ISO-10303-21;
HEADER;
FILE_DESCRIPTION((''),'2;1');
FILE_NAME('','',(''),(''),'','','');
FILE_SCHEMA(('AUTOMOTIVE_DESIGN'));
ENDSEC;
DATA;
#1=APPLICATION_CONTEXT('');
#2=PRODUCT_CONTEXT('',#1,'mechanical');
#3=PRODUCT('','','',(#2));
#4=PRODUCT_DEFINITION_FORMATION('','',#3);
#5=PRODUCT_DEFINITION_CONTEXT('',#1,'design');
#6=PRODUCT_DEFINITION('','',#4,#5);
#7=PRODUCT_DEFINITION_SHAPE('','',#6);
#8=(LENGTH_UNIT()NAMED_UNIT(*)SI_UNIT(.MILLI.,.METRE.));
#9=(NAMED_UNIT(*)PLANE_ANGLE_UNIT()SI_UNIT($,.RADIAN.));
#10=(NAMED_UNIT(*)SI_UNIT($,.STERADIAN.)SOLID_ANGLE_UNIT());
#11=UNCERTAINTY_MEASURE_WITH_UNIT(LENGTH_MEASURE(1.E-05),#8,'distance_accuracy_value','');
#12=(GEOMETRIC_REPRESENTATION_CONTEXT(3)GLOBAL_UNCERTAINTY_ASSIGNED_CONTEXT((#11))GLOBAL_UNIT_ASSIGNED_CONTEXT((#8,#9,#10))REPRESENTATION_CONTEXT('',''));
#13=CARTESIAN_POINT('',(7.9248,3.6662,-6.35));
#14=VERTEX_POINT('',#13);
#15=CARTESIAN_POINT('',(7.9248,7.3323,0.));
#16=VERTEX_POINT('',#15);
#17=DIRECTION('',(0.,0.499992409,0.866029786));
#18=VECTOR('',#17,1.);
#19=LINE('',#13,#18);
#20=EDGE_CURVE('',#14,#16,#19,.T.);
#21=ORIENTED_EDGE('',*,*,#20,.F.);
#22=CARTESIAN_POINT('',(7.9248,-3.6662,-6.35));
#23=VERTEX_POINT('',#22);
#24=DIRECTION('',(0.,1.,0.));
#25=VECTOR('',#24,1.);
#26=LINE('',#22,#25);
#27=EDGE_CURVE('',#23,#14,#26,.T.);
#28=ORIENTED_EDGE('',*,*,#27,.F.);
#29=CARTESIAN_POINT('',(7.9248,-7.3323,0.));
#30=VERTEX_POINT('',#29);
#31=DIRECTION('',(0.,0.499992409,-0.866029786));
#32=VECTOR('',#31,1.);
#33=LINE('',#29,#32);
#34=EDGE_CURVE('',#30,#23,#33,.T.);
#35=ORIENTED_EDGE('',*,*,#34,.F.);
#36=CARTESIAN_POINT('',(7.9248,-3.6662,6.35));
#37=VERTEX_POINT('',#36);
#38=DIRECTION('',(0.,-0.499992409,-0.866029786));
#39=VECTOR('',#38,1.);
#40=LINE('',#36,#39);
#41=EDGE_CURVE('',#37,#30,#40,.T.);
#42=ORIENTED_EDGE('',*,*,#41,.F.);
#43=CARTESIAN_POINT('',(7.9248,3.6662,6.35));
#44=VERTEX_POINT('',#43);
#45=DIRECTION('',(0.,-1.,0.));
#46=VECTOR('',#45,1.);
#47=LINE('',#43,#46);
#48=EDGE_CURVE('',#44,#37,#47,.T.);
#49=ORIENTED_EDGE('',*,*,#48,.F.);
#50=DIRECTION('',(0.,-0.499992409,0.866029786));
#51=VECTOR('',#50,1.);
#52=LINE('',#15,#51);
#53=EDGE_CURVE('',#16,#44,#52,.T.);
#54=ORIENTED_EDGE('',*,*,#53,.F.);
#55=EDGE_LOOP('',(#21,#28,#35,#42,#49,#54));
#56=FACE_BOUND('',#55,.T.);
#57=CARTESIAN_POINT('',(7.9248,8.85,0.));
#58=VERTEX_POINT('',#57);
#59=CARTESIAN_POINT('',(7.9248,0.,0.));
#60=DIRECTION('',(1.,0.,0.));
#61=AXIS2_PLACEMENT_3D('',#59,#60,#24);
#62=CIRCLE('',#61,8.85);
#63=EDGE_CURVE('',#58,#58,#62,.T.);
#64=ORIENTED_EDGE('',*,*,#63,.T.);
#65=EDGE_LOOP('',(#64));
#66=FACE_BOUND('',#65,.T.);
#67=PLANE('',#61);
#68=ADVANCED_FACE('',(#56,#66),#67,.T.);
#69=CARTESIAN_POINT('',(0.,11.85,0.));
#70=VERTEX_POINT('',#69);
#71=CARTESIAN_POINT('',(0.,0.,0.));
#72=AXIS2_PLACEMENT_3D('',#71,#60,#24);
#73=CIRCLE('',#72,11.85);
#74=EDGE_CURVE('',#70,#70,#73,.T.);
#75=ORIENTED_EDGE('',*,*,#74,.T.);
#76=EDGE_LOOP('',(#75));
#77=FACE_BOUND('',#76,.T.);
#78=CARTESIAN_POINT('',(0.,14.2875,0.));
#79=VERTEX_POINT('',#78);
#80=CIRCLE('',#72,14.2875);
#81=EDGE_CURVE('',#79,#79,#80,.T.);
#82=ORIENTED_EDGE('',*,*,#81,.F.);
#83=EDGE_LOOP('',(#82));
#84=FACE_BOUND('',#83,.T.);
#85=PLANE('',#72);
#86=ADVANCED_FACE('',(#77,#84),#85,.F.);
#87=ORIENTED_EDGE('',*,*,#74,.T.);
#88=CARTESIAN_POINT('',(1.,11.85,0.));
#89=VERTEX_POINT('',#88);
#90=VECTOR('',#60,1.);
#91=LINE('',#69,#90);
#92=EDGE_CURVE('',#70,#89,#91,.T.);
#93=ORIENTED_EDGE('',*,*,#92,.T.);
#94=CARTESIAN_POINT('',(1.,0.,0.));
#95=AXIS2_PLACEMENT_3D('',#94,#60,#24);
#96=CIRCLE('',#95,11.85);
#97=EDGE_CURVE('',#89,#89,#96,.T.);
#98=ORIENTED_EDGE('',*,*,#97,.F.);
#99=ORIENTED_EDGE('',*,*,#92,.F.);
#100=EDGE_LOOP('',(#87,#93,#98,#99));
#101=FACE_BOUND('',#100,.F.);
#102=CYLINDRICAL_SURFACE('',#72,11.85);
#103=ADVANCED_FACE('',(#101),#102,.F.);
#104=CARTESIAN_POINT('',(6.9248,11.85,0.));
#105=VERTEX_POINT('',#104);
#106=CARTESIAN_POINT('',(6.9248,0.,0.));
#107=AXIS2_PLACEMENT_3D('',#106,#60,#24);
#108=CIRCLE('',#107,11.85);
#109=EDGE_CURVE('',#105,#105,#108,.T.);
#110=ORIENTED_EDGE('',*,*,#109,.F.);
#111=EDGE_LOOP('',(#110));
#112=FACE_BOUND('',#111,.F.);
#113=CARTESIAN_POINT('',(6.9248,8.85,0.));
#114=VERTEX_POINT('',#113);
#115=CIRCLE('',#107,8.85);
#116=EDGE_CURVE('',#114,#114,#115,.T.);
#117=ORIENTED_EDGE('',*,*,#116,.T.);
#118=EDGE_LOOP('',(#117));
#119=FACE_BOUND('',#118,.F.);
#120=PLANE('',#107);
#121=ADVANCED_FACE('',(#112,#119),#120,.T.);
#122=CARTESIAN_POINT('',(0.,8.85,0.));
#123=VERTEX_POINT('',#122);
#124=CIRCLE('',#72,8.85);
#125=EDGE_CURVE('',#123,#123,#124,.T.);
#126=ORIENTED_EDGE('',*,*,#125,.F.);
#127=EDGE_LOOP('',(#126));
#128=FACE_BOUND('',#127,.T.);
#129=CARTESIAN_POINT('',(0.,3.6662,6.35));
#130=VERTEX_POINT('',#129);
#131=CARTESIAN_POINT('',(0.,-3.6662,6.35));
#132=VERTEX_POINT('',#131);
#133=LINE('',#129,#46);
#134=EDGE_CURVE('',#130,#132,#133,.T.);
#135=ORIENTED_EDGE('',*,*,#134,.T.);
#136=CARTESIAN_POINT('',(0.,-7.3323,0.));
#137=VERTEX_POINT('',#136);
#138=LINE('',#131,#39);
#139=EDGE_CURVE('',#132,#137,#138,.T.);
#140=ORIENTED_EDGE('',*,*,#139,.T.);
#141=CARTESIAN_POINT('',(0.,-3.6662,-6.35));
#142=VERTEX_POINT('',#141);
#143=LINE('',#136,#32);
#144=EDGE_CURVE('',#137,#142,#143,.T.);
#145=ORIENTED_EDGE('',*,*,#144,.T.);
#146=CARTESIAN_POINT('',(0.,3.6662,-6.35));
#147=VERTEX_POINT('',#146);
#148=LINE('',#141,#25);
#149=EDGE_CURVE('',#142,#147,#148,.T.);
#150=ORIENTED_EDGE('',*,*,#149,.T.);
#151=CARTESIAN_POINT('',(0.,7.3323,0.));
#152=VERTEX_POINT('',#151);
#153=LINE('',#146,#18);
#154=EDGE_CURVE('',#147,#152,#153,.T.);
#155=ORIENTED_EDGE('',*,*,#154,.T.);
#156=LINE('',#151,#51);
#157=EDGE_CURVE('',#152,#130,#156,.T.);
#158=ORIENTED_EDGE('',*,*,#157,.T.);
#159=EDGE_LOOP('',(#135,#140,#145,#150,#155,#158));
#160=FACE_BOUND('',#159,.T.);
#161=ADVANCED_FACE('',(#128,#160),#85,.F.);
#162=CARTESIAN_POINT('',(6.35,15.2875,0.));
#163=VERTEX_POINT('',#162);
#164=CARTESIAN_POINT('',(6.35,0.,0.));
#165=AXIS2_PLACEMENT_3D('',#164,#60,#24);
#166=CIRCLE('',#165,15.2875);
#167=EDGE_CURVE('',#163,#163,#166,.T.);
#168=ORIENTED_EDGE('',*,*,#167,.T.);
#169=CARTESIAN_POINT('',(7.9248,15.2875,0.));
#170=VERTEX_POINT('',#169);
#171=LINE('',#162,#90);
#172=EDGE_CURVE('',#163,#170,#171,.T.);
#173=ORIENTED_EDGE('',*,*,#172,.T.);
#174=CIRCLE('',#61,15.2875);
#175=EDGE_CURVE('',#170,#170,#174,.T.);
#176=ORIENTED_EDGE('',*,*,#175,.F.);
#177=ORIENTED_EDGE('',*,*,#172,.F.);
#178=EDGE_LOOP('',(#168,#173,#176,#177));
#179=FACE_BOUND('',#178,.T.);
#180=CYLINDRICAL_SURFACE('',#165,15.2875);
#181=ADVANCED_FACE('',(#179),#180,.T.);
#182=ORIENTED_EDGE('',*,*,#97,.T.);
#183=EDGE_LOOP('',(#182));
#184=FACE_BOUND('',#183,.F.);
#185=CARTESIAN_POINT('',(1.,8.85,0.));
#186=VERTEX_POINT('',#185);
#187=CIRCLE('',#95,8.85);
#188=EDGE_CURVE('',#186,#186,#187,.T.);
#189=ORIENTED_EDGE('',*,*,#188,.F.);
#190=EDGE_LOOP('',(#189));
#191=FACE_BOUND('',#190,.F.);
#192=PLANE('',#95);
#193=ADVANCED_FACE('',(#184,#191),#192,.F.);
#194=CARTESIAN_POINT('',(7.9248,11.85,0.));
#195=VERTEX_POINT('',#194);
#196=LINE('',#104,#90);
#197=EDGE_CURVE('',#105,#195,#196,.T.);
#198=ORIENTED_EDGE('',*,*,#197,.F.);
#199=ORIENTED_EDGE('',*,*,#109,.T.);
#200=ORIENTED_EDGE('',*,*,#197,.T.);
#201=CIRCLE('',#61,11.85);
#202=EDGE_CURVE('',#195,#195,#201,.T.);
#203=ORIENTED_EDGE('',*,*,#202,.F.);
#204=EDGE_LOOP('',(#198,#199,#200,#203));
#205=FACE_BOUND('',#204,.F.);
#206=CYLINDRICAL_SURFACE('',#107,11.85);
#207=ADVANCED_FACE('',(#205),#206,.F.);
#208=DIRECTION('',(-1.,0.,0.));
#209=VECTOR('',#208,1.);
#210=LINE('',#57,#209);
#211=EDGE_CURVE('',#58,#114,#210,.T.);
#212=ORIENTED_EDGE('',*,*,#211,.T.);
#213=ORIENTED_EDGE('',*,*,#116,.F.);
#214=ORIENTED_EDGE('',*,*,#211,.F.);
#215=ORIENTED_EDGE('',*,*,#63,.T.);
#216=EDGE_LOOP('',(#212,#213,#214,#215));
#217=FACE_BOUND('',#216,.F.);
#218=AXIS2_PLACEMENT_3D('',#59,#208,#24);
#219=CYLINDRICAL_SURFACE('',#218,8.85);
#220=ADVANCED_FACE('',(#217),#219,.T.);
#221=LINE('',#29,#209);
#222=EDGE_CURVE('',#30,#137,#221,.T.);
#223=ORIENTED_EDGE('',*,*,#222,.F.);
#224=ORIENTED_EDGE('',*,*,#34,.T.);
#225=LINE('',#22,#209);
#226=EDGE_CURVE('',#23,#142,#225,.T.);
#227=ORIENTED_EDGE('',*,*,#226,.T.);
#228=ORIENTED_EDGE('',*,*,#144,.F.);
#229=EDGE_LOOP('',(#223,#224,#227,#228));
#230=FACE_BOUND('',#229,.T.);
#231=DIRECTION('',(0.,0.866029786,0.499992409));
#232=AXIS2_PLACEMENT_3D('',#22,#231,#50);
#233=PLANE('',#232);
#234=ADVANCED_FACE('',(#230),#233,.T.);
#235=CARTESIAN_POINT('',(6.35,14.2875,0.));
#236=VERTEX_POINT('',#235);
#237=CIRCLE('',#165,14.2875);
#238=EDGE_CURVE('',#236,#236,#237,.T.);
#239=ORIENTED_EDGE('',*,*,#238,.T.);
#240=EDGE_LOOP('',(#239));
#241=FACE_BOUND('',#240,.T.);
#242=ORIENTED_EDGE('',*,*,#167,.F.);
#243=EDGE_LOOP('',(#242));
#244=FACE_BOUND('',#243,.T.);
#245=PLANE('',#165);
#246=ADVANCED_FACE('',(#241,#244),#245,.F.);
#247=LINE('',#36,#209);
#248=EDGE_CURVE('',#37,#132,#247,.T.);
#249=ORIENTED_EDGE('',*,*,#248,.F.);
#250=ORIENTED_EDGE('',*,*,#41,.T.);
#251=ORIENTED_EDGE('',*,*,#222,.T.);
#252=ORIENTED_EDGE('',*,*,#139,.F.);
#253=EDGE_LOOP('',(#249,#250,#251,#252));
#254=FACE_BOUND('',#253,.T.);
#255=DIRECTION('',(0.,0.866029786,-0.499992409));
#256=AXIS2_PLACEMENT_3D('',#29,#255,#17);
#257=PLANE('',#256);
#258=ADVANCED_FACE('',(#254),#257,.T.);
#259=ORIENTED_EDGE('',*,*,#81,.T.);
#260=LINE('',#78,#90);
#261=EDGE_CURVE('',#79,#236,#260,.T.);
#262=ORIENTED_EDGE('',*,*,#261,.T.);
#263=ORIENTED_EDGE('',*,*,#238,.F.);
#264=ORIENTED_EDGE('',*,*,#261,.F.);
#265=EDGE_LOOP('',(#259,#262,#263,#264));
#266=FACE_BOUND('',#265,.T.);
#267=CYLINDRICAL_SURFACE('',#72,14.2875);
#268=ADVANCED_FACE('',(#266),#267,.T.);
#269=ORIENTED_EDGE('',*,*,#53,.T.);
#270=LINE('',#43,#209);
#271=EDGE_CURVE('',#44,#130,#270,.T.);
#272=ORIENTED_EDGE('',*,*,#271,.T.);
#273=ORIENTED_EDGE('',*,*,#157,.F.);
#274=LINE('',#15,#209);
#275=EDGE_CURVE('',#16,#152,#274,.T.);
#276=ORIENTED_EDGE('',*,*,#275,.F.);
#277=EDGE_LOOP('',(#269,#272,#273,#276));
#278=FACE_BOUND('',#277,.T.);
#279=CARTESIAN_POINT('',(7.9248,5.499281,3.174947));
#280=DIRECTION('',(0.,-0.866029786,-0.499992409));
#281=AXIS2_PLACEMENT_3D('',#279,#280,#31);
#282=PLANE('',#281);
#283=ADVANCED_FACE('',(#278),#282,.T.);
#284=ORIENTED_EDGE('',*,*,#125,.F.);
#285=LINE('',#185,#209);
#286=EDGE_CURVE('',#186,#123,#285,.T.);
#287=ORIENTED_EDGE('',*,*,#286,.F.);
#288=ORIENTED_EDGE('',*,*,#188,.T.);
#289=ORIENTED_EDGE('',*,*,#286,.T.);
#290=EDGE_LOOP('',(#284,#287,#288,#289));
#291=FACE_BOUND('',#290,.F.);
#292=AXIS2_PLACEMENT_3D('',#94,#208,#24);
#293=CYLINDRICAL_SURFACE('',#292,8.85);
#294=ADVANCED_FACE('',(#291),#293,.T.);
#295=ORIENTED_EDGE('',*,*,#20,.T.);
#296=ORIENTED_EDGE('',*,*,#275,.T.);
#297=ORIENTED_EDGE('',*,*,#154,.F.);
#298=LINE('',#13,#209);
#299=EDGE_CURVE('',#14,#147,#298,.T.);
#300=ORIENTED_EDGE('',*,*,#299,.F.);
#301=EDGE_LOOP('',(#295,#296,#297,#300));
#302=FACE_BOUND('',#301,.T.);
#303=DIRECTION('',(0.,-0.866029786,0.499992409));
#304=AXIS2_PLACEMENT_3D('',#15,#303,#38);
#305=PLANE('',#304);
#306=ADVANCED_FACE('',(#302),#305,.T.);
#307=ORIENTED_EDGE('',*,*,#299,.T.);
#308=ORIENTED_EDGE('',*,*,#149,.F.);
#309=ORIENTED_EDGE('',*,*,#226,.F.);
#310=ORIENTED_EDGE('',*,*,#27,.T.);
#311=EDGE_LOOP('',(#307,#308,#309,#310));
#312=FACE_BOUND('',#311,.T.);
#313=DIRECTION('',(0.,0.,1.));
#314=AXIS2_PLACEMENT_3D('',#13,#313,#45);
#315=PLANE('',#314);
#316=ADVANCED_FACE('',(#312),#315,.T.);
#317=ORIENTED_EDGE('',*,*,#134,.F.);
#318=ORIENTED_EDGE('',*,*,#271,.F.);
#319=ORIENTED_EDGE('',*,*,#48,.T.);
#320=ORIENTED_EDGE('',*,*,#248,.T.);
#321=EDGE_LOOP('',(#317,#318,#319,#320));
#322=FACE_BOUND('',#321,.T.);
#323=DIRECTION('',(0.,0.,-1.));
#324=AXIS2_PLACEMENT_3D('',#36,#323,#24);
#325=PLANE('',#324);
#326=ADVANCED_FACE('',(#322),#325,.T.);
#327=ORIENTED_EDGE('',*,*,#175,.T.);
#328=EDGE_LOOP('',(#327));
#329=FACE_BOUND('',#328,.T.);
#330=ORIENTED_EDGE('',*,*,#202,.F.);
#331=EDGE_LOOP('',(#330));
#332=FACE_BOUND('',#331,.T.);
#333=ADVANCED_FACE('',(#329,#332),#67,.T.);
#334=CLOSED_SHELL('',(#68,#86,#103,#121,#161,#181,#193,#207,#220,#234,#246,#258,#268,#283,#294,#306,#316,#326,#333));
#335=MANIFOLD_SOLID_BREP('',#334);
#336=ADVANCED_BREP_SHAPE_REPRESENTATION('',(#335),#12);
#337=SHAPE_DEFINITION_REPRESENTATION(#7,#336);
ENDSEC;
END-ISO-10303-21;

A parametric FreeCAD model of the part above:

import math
import FreeCAD as App
import Part
import Sketcher
from FreeCAD import Vector
Q = App.Units.Quantity

doc = App.newDocument("Part")
params = doc.addObject("Spreadsheet::Sheet", "Params")
for row, (alias, value) in enumerate([
    ("sketch1_width", "0.312 in"),
    ("sketch1_width2", "0.062 in"),
    ("revolution_angle", "360 deg"),
    ("sketch2_radius", "0.25 in"),
], start=1):
    params.set(f"A{row}", alias)
    params.set(f"B{row}", "=" + value)
    params.setAlias(f"B{row}", alias)

body = doc.addObject("PartDesign::Body", "Body")

sketch1 = doc.addObject("Sketcher::SketchObject", "Sketch")
body.addObject(sketch1)
sketch1.AttachmentSupport = (doc.XY_Plane, [""])
sketch1.MapMode = "FlatFace"
sketch1.addGeometry([
    Part.LineSegment(Vector(6.35, 14.2875, 0), Vector(0, 14.2875, 0)),
    Part.LineSegment(Vector(0, 14.2875, 0), Vector(0, 11.85, 0)),
    Part.LineSegment(Vector(0, 11.85, 0), Vector(1, 11.85, 0)),
    Part.LineSegment(Vector(1, 11.85, 0), Vector(1, 8.85, 0)),
    Part.LineSegment(Vector(1, 8.85, 0), Vector(0, 8.85, 0)),
    Part.LineSegment(Vector(0, 8.85, 0), Vector(0, 6.35, 0)),
    Part.LineSegment(Vector(0, 6.35, 0), Vector(7.9248, 6.35, 0)),
    Part.LineSegment(Vector(7.9248, 6.35, 0), Vector(7.9248, 8.85, 0)),
    Part.LineSegment(Vector(7.9248, 8.85, 0), Vector(6.9248, 8.85, 0)),
    Part.LineSegment(Vector(6.9248, 8.85, 0), Vector(6.9248, 11.85, 0)),
    Part.LineSegment(Vector(6.9248, 11.85, 0), Vector(7.9248, 11.85, 0)),
    Part.LineSegment(Vector(7.9248, 11.85, 0), Vector(7.9248, 15.2875, 0)),
    Part.LineSegment(Vector(7.9248, 15.2875, 0), Vector(6.35, 15.2875, 0)),
    Part.LineSegment(Vector(6.35, 15.2875, 0), Vector(6.35, 14.2875, 0)),
], False)
sketch1.addConstraint([
    Sketcher.Constraint("Coincident", 0, 2, 1, 1),
    Sketcher.Constraint("Coincident", 1, 2, 2, 1),
    Sketcher.Constraint("Coincident", 2, 2, 3, 1),
    Sketcher.Constraint("Coincident", 3, 2, 4, 1),
    Sketcher.Constraint("Coincident", 4, 2, 5, 1),
    Sketcher.Constraint("Coincident", 5, 2, 6, 1),
    Sketcher.Constraint("Coincident", 6, 2, 7, 1),
    Sketcher.Constraint("Coincident", 7, 2, 8, 1),
    Sketcher.Constraint("Coincident", 8, 2, 9, 1),
    Sketcher.Constraint("Coincident", 9, 2, 10, 1),
    Sketcher.Constraint("Coincident", 10, 2, 11, 1),
    Sketcher.Constraint("Coincident", 11, 2, 12, 1),
    Sketcher.Constraint("Coincident", 12, 2, 13, 1),
    Sketcher.Constraint("Coincident", 13, 2, 0, 1),
    Sketcher.Constraint("Horizontal", 0),
    Sketcher.Constraint("Vertical", 1),
    Sketcher.Constraint("Horizontal", 2),
    Sketcher.Constraint("Vertical", 3),
    Sketcher.Constraint("Horizontal", 4),
    Sketcher.Constraint("Vertical", 5),
    Sketcher.Constraint("Horizontal", 6),
    Sketcher.Constraint("Vertical", 7),
    Sketcher.Constraint("Horizontal", 8),
    Sketcher.Constraint("Vertical", 9),
    Sketcher.Constraint("Horizontal", 10),
    Sketcher.Constraint("Vertical", 11),
    Sketcher.Constraint("Horizontal", 12),
    Sketcher.Constraint("Vertical", 13),
    Sketcher.Constraint("PointOnObject", 0, 2, -2),
    Sketcher.Constraint("PointOnObject", 4, 2, -2),
    Sketcher.Constraint("Horizontal", 4, 2, 7, 2),
    Sketcher.Constraint("Horizontal", 2, 2, 9, 2),
    Sketcher.Constraint("Vertical", 7, 2, 10, 2),
    Sketcher.Constraint("Equal", 4, 8),
    Sketcher.Constraint("Equal", 10, 13),
    Sketcher.Constraint("DistanceX", 6, 1, 6, 2, Q("0.312 in")),
    Sketcher.Constraint("DistanceX", 12, 2, 12, 1, Q("0.062 in")),
    Sketcher.Constraint("DistanceY", 3, 2, 3, 1, Q("0.1181 in")),
    Sketcher.Constraint("DistanceX", 2, 1, 2, 2, 1.0),
    Sketcher.Constraint("DistanceY", 5, 2, 5, 1, 2.5),
    Sketcher.Constraint("DistanceY", -1, 1, 5, 2, Q("0.25 in")),
    Sketcher.Constraint("DistanceY", -1, 1, 0, 2, Q("0.5625 in")),
])
sketch1.setExpression("Constraints[35]", "Params.sketch1_width")
sketch1.setExpression("Constraints[36]", "Params.sketch1_width2")
revolution = doc.addObject("PartDesign::Revolution", "Revolution")
body.addObject(revolution)
revolution.Profile = sketch1
revolution.ReferenceAxis = (sketch1, ["H_Axis"])
revolution.setExpression("Angle", "Params.revolution_angle")

sketch2 = doc.addObject("Sketcher::SketchObject", "Sketch001")
body.addObject(sketch2)
sketch2.AttachmentSupport = (doc.YZ_Plane, [""])
sketch2.MapMode = "FlatFace"
sketch2.AttachmentOffset = App.Placement(Vector(0, 0, 0.312 * 25.4), App.Rotation())
sketch2.addGeometry([
    Part.LineSegment(Vector(-3.6662, -6.35, 0), Vector(0, -6.35, 0)),
    Part.ArcOfCircle(Part.Circle(Vector(0, 0, 0), Vector(0, 0, 1), 6.35), math.radians(-150.000502), math.radians(-90)),
    Part.LineSegment(Vector(-5.499281, -3.174947, 0), Vector(-3.6662, -6.35, 0)),
    Part.ArcOfCircle(Part.Circle(Vector(0, 0, 0), Vector(0, 0, 1), 6.35), math.radians(-90), math.radians(-29.999498)),
    Part.LineSegment(Vector(0, -6.35, 0), Vector(3.6662, -6.35, 0)),
    Part.LineSegment(Vector(3.6662, -6.35, 0), Vector(5.499281, -3.174947, 0)),
    Part.ArcOfCircle(Part.Circle(Vector(0, 0, 0), Vector(0, 0, 1), 6.35), math.radians(-29.999498), math.radians(29.999498)),
    Part.LineSegment(Vector(5.499281, -3.174947, 0), Vector(7.3323, 0, 0)),
    Part.LineSegment(Vector(7.3323, 0, 0), Vector(5.499281, 3.174947, 0)),
    Part.LineSegment(Vector(-7.3323, 0, 0), Vector(-5.499281, -3.174947, 0)),
    Part.ArcOfCircle(Part.Circle(Vector(0, 0, 0), Vector(0, 0, 1), 6.35), math.radians(150.000502), math.radians(209.999498)),
    Part.LineSegment(Vector(-5.499281, 3.174947, 0), Vector(-7.3323, 0, 0)),
    Part.ArcOfCircle(Part.Circle(Vector(0, 0, 0), Vector(0, 0, 1), 6.35), math.radians(29.999498), math.radians(90)),
    Part.LineSegment(Vector(5.499281, 3.174947, 0), Vector(3.6662, 6.35, 0)),
    Part.LineSegment(Vector(3.6662, 6.35, 0), Vector(0, 6.35, 0)),
    Part.LineSegment(Vector(-3.6662, 6.35, 0), Vector(-5.499281, 3.174947, 0)),
    Part.ArcOfCircle(Part.Circle(Vector(0, 0, 0), Vector(0, 0, 1), 6.35), math.radians(90), math.radians(150.000502)),
    Part.LineSegment(Vector(0, 6.35, 0), Vector(-3.6662, 6.35, 0)),
], False)
sketch2.addConstraint([
    Sketcher.Constraint("Tangent", 0, 2, 1, 2),
    Sketcher.Constraint("Tangent", 1, 1, 2, 1),
    Sketcher.Constraint("Coincident", 2, 2, 0, 1),
    Sketcher.Constraint("Tangent", 3, 1, 4, 1),
    Sketcher.Constraint("Coincident", 4, 2, 5, 1),
    Sketcher.Constraint("Tangent", 5, 2, 3, 2),
    Sketcher.Constraint("Tangent", 6, 1, 7, 1),
    Sketcher.Constraint("Coincident", 7, 2, 8, 1),
    Sketcher.Constraint("Tangent", 8, 2, 6, 2),
    Sketcher.Constraint("Tangent", 9, 2, 10, 2),
    Sketcher.Constraint("Tangent", 10, 1, 11, 1),
    Sketcher.Constraint("Coincident", 11, 2, 9, 1),
    Sketcher.Constraint("Tangent", 12, 1, 13, 1),
    Sketcher.Constraint("Coincident", 13, 2, 14, 1),
    Sketcher.Constraint("Tangent", 14, 2, 12, 2),
    Sketcher.Constraint("Tangent", 15, 2, 16, 2),
    Sketcher.Constraint("Tangent", 16, 1, 17, 1),
    Sketcher.Constraint("Coincident", 17, 2, 15, 1),
    Sketcher.Constraint("Horizontal", 0),
    Sketcher.Constraint("Horizontal", 4),
    Sketcher.Constraint("Horizontal", 14),
    Sketcher.Constraint("Horizontal", 17),
    Sketcher.Constraint("Coincident", 1, 3, -1, 1),
    Sketcher.Constraint("Coincident", 3, 3, -1, 1),
    Sketcher.Constraint("Coincident", 6, 3, -1, 1),
    Sketcher.Constraint("Coincident", 10, 3, -1, 1),
    Sketcher.Constraint("Coincident", 12, 3, -1, 1),
    Sketcher.Constraint("Coincident", 16, 3, -1, 1),
    Sketcher.Constraint("Coincident", 6, 1, 5, 2),
    Sketcher.Constraint("Coincident", 9, 2, 1, 1),
    Sketcher.Constraint("Coincident", 12, 1, 8, 2),
    Sketcher.Constraint("Coincident", 15, 2, 10, 1),
    Sketcher.Constraint("Equal", 1, 3),
    Sketcher.Constraint("Symmetric", 7, 2, 11, 2, -1, 1),
    Sketcher.Constraint("PointOnObject", 7, 2, -1),
    Sketcher.Constraint("Equal", 5, 7),
    Sketcher.Constraint("Radius", 1, Q("0.25 in")),
])
sketch2.setExpression("Constraints[36]", "Params.sketch2_radius")
pocket1 = doc.addObject("PartDesign::Pocket", "Pocket")
body.addObject(pocket1)
pocket1.Profile = sketch2
pocket1.Type = "ThroughAll"

doc.recompute()
